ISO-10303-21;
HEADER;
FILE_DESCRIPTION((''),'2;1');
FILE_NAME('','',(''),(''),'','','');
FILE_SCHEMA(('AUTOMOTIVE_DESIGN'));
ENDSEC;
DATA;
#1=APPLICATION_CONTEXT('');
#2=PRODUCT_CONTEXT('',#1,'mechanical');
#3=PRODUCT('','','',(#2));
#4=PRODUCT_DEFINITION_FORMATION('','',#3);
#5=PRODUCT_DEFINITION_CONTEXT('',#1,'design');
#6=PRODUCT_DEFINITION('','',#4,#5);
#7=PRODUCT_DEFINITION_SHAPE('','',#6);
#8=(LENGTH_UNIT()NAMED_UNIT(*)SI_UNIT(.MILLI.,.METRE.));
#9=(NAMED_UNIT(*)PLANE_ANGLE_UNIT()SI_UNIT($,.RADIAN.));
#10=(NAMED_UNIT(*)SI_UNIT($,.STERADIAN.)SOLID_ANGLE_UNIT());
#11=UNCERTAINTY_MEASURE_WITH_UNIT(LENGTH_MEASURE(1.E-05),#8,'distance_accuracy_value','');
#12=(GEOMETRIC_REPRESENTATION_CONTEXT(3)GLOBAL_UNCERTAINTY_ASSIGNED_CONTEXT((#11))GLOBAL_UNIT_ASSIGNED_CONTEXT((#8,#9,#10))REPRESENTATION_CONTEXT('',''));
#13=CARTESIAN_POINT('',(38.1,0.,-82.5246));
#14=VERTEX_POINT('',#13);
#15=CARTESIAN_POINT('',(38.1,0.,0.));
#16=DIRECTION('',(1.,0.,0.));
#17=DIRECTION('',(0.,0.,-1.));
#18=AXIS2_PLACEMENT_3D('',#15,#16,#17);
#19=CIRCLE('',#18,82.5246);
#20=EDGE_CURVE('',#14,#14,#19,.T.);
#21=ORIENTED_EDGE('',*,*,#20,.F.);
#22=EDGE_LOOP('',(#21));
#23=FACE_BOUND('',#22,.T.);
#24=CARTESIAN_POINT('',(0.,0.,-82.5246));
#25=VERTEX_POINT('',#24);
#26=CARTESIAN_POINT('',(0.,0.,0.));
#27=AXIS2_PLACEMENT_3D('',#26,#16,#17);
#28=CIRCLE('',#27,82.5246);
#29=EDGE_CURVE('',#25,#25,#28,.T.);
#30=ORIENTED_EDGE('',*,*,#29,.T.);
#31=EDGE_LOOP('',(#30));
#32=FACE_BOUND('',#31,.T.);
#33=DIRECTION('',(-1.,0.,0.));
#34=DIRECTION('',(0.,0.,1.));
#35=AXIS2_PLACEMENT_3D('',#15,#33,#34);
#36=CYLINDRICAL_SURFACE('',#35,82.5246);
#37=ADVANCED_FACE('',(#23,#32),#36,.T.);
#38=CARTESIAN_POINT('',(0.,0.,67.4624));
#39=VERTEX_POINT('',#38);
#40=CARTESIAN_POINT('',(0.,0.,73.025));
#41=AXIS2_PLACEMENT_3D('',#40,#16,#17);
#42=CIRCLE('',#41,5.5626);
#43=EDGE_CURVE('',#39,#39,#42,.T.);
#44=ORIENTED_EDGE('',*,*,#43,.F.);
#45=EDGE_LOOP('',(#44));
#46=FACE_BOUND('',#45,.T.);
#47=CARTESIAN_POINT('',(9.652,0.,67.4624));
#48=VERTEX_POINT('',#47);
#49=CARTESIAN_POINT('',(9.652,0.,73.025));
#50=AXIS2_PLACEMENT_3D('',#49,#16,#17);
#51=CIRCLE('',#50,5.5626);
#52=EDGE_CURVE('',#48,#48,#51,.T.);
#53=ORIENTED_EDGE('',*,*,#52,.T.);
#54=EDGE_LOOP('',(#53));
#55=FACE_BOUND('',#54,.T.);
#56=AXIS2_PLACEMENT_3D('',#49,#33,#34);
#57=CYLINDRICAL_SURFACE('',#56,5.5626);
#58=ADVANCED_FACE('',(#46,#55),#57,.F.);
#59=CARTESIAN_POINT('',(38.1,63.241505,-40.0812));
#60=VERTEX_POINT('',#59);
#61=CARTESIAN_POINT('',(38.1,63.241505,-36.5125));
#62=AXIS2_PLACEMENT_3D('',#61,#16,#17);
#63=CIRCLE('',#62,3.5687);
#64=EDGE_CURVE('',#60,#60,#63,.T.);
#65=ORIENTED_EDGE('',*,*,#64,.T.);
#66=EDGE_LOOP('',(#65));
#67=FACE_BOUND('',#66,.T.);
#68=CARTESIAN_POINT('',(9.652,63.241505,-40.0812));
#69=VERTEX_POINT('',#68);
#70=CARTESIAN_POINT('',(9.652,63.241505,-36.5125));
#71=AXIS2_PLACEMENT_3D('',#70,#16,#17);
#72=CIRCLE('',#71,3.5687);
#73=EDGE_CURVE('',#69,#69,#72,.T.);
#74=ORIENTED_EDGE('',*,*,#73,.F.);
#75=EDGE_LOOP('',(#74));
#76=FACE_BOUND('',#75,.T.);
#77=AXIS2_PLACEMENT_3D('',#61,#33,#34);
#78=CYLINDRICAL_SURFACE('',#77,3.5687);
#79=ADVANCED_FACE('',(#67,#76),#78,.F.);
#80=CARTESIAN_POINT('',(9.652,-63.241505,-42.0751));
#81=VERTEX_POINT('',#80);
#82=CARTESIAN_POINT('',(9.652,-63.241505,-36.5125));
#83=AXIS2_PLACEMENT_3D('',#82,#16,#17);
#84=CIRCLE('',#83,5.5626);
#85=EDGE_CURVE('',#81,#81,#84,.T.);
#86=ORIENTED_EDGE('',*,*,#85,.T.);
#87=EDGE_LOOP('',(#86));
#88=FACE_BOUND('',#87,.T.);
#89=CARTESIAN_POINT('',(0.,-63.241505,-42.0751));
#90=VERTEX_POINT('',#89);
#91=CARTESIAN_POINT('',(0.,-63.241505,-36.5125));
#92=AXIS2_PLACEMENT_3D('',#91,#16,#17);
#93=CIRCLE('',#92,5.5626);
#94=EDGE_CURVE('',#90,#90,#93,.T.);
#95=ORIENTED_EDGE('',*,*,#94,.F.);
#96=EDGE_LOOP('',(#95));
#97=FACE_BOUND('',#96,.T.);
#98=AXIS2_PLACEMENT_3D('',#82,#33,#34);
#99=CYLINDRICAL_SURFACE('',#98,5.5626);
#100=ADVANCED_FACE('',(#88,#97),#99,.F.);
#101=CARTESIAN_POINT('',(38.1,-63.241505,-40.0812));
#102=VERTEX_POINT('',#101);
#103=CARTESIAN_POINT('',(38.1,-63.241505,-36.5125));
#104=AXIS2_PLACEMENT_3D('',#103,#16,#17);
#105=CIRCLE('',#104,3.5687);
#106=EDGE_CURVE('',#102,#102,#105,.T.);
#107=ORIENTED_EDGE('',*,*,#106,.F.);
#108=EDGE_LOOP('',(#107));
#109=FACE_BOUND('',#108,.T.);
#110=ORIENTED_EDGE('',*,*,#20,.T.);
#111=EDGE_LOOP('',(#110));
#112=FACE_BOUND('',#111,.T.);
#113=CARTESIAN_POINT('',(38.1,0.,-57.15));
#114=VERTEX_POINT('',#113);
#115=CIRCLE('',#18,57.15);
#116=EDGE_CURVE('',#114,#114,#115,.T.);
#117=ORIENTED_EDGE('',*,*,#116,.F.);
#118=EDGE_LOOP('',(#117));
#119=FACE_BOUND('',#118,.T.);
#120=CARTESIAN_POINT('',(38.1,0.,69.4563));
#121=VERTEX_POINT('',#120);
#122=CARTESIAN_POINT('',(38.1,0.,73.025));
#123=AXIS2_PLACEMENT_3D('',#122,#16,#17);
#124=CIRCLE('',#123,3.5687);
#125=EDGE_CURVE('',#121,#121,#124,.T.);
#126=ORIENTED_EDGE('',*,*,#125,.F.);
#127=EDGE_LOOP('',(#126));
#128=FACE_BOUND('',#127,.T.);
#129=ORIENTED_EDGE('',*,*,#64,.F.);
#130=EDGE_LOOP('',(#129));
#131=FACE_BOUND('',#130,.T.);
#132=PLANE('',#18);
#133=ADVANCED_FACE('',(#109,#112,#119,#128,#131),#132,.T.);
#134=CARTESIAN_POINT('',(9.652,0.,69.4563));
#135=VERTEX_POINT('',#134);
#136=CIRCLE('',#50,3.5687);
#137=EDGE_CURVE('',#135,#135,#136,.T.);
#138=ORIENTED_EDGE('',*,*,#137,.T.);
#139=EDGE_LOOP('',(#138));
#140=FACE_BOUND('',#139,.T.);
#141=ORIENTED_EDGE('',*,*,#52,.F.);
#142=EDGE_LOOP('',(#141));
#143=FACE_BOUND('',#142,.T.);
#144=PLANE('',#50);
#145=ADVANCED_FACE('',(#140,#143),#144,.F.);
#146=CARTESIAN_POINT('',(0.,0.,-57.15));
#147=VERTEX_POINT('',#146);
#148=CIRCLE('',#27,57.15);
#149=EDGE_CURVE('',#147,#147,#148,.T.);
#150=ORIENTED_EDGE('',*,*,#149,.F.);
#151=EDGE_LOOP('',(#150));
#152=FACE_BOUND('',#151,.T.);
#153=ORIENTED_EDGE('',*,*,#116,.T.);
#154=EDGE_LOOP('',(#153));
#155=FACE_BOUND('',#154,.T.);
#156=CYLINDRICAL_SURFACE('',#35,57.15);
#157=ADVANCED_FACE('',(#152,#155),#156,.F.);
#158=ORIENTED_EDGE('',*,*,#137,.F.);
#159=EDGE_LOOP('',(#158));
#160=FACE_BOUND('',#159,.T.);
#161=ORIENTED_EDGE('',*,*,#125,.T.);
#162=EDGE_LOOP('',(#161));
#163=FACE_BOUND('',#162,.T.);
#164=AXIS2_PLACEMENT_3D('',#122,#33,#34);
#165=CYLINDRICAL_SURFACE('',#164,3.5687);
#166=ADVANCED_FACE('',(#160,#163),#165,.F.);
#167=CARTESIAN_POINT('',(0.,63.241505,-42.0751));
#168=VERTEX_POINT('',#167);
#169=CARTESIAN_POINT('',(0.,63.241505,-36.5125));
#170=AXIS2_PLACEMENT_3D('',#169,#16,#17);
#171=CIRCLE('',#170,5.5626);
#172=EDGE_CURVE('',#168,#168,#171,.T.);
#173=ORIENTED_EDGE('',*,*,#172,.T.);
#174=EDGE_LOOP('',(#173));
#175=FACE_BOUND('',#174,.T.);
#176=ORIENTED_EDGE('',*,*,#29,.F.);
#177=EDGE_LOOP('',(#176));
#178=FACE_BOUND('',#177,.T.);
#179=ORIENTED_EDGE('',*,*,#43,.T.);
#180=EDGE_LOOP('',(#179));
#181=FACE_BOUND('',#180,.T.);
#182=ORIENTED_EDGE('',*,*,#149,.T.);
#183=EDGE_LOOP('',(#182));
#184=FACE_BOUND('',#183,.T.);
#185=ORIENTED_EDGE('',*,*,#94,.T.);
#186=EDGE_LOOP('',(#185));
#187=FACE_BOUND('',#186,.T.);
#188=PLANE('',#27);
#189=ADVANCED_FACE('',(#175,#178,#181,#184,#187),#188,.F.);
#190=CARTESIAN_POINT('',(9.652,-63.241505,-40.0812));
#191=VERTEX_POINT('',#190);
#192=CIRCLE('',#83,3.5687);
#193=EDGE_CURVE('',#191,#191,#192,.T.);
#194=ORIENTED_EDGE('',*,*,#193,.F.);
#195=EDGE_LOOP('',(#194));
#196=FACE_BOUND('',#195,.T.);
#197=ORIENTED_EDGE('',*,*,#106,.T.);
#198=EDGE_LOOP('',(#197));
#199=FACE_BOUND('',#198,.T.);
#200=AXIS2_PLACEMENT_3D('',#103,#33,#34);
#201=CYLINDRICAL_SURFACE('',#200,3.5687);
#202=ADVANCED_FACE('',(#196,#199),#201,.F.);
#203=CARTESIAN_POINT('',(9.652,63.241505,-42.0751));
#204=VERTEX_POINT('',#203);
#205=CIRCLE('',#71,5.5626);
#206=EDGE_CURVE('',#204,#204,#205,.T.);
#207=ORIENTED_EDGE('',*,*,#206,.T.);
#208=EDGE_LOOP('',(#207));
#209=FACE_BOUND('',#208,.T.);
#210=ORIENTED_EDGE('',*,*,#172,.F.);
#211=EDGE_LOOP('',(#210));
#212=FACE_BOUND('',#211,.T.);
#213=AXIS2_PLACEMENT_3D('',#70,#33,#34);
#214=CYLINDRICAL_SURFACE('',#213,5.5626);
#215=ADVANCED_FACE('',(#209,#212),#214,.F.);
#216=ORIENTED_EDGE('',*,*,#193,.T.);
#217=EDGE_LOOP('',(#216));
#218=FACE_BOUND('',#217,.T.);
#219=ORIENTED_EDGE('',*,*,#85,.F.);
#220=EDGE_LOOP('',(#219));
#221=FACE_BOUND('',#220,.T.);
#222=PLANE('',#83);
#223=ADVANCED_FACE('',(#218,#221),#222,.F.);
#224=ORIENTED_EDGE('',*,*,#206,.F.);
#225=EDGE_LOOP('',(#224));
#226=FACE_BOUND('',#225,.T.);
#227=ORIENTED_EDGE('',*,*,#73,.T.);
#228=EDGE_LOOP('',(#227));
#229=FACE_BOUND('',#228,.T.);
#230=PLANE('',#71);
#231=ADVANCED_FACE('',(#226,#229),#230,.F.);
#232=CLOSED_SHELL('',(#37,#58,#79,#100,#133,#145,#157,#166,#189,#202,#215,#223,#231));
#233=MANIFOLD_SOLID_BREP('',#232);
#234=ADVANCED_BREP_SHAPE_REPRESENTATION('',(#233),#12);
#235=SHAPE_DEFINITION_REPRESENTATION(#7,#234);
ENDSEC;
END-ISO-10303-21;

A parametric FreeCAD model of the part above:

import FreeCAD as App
import Part
import Sketcher
from FreeCAD import Vector
Q = App.Units.Quantity

doc = App.newDocument("Part")
body = doc.addObject("PartDesign::Body", "Body")

# Sketch on YZ plane
sketch1 = body.newObject("Sketcher::SketchObject", "Sketch")
sketch1.AttachmentSupport = (doc.getObject("YZ_Plane"), [""])
sketch1.MapMode = "FlatFace"
sketch1.addGeometry(Part.Circle(Vector(0, 0, 0), Vector(0, 0, 1), 83), False)
sketch1.addConstraint([
    Sketcher.Constraint("Coincident", 0, 3, -1, 1),
    Sketcher.Constraint("Diameter", 0, Q("6.498 in")),
])
pad1 = body.newObject("PartDesign::Pad", "Pad")
pad1.Profile = sketch1
pad1.Length = Q("1.5 in")

# Sketch on YZ plane
sketch2 = body.newObject("Sketcher::SketchObject", "Sketch001")
sketch2.AttachmentSupport = (doc.getObject("YZ_Plane"), [""])
sketch2.MapMode = "FlatFace"
sketch2.addGeometry(Part.Circle(Vector(0, 0, 0), Vector(0, 0, 1), 57), False)
sketch2.addConstraint([
    Sketcher.Constraint("Coincident", 0, 3, -1, 1),
    Sketcher.Constraint("Diameter", 0, Q("4.5 in")),
])
pocket1 = body.newObject("PartDesign::Pocket", "Pocket")
pocket1.Profile = sketch2
pocket1.Length = Q("1.5 in")
pocket1.Reversed = True

# Sketch on YZ plane
sketch3 = body.newObject("Sketcher::SketchObject", "Sketch002")
sketch3.AttachmentSupport = (doc.getObject("YZ_Plane"), [""])
sketch3.MapMode = "FlatFace"
sketch3.addGeometry([
    Part.Circle(Vector(0, 73, 0), Vector(0, 0, 1), 3.6),
    Part.Circle(Vector(-63.2, -36.5, 0), Vector(0, 0, 1), 3.6),
    Part.Circle(Vector(63.2, -36.5, 0), Vector(0, 0, 1), 3.6),
], False)
sketch3.addConstraint([
    Sketcher.Constraint("Equal", 0, 1),
    Sketcher.Constraint("Equal", 1, 2),
    Sketcher.Constraint("Symmetric", 1, 3, 2, 3, -2),
    Sketcher.Constraint("PointOnObject", 0, 3, -2),
    Sketcher.Constraint("Diameter", 0, Q("0.281 in")),
    Sketcher.Constraint("DistanceY", -1, 1, 0, 3, Q("2.875 in")),
    Sketcher.Constraint("DistanceY", 1, 3, -1, 1, Q("1.4375 in")),
    Sketcher.Constraint("DistanceX", 1, 3, 2, 3, 126.48301),
])
pocket2 = body.newObject("PartDesign::Pocket", "Pocket001")
pocket2.Profile = sketch3
pocket2.Type = "ThroughAll"
pocket2.Reversed = True

# Sketch on YZ plane
sketch4 = body.newObject("Sketcher::SketchObject", "Sketch003")
sketch4.AttachmentSupport = (doc.getObject("YZ_Plane"), [""])
sketch4.MapMode = "FlatFace"
sketch4.addGeometry([
    Part.Circle(Vector(0, 73, 0), Vector(0, 0, 1), 6),
    Part.Circle(Vector(-63, -37, 0), Vector(0, 0, 1), 6),
    Part.Circle(Vector(63, -37, 0), Vector(0, 0, 1), 6),
], False)
sketch4.addConstraint([
    Sketcher.Constraint("Equal", 0, 1),
    Sketcher.Constraint("Equal", 1, 2),
    Sketcher.Constraint("Symmetric", 1, 3, 2, 3, -2),
    Sketcher.Constraint("PointOnObject", 0, 3, -2),
    Sketcher.Constraint("Diameter", 0, Q("0.438 in")),
    Sketcher.Constraint("DistanceY", -1, 1, 0, 3, Q("2.875 in")),
    Sketcher.Constraint("DistanceY", 1, 3, -1, 1, Q("1.4375 in")),
    Sketcher.Constraint("DistanceX", 1, 3, 2, 3, 126.48301),
])
pocket3 = body.newObject("PartDesign::Pocket", "Pocket002")
pocket3.Profile = sketch4
pocket3.Length = Q("0.38 in")
pocket3.Reversed = True

doc.recompute()
